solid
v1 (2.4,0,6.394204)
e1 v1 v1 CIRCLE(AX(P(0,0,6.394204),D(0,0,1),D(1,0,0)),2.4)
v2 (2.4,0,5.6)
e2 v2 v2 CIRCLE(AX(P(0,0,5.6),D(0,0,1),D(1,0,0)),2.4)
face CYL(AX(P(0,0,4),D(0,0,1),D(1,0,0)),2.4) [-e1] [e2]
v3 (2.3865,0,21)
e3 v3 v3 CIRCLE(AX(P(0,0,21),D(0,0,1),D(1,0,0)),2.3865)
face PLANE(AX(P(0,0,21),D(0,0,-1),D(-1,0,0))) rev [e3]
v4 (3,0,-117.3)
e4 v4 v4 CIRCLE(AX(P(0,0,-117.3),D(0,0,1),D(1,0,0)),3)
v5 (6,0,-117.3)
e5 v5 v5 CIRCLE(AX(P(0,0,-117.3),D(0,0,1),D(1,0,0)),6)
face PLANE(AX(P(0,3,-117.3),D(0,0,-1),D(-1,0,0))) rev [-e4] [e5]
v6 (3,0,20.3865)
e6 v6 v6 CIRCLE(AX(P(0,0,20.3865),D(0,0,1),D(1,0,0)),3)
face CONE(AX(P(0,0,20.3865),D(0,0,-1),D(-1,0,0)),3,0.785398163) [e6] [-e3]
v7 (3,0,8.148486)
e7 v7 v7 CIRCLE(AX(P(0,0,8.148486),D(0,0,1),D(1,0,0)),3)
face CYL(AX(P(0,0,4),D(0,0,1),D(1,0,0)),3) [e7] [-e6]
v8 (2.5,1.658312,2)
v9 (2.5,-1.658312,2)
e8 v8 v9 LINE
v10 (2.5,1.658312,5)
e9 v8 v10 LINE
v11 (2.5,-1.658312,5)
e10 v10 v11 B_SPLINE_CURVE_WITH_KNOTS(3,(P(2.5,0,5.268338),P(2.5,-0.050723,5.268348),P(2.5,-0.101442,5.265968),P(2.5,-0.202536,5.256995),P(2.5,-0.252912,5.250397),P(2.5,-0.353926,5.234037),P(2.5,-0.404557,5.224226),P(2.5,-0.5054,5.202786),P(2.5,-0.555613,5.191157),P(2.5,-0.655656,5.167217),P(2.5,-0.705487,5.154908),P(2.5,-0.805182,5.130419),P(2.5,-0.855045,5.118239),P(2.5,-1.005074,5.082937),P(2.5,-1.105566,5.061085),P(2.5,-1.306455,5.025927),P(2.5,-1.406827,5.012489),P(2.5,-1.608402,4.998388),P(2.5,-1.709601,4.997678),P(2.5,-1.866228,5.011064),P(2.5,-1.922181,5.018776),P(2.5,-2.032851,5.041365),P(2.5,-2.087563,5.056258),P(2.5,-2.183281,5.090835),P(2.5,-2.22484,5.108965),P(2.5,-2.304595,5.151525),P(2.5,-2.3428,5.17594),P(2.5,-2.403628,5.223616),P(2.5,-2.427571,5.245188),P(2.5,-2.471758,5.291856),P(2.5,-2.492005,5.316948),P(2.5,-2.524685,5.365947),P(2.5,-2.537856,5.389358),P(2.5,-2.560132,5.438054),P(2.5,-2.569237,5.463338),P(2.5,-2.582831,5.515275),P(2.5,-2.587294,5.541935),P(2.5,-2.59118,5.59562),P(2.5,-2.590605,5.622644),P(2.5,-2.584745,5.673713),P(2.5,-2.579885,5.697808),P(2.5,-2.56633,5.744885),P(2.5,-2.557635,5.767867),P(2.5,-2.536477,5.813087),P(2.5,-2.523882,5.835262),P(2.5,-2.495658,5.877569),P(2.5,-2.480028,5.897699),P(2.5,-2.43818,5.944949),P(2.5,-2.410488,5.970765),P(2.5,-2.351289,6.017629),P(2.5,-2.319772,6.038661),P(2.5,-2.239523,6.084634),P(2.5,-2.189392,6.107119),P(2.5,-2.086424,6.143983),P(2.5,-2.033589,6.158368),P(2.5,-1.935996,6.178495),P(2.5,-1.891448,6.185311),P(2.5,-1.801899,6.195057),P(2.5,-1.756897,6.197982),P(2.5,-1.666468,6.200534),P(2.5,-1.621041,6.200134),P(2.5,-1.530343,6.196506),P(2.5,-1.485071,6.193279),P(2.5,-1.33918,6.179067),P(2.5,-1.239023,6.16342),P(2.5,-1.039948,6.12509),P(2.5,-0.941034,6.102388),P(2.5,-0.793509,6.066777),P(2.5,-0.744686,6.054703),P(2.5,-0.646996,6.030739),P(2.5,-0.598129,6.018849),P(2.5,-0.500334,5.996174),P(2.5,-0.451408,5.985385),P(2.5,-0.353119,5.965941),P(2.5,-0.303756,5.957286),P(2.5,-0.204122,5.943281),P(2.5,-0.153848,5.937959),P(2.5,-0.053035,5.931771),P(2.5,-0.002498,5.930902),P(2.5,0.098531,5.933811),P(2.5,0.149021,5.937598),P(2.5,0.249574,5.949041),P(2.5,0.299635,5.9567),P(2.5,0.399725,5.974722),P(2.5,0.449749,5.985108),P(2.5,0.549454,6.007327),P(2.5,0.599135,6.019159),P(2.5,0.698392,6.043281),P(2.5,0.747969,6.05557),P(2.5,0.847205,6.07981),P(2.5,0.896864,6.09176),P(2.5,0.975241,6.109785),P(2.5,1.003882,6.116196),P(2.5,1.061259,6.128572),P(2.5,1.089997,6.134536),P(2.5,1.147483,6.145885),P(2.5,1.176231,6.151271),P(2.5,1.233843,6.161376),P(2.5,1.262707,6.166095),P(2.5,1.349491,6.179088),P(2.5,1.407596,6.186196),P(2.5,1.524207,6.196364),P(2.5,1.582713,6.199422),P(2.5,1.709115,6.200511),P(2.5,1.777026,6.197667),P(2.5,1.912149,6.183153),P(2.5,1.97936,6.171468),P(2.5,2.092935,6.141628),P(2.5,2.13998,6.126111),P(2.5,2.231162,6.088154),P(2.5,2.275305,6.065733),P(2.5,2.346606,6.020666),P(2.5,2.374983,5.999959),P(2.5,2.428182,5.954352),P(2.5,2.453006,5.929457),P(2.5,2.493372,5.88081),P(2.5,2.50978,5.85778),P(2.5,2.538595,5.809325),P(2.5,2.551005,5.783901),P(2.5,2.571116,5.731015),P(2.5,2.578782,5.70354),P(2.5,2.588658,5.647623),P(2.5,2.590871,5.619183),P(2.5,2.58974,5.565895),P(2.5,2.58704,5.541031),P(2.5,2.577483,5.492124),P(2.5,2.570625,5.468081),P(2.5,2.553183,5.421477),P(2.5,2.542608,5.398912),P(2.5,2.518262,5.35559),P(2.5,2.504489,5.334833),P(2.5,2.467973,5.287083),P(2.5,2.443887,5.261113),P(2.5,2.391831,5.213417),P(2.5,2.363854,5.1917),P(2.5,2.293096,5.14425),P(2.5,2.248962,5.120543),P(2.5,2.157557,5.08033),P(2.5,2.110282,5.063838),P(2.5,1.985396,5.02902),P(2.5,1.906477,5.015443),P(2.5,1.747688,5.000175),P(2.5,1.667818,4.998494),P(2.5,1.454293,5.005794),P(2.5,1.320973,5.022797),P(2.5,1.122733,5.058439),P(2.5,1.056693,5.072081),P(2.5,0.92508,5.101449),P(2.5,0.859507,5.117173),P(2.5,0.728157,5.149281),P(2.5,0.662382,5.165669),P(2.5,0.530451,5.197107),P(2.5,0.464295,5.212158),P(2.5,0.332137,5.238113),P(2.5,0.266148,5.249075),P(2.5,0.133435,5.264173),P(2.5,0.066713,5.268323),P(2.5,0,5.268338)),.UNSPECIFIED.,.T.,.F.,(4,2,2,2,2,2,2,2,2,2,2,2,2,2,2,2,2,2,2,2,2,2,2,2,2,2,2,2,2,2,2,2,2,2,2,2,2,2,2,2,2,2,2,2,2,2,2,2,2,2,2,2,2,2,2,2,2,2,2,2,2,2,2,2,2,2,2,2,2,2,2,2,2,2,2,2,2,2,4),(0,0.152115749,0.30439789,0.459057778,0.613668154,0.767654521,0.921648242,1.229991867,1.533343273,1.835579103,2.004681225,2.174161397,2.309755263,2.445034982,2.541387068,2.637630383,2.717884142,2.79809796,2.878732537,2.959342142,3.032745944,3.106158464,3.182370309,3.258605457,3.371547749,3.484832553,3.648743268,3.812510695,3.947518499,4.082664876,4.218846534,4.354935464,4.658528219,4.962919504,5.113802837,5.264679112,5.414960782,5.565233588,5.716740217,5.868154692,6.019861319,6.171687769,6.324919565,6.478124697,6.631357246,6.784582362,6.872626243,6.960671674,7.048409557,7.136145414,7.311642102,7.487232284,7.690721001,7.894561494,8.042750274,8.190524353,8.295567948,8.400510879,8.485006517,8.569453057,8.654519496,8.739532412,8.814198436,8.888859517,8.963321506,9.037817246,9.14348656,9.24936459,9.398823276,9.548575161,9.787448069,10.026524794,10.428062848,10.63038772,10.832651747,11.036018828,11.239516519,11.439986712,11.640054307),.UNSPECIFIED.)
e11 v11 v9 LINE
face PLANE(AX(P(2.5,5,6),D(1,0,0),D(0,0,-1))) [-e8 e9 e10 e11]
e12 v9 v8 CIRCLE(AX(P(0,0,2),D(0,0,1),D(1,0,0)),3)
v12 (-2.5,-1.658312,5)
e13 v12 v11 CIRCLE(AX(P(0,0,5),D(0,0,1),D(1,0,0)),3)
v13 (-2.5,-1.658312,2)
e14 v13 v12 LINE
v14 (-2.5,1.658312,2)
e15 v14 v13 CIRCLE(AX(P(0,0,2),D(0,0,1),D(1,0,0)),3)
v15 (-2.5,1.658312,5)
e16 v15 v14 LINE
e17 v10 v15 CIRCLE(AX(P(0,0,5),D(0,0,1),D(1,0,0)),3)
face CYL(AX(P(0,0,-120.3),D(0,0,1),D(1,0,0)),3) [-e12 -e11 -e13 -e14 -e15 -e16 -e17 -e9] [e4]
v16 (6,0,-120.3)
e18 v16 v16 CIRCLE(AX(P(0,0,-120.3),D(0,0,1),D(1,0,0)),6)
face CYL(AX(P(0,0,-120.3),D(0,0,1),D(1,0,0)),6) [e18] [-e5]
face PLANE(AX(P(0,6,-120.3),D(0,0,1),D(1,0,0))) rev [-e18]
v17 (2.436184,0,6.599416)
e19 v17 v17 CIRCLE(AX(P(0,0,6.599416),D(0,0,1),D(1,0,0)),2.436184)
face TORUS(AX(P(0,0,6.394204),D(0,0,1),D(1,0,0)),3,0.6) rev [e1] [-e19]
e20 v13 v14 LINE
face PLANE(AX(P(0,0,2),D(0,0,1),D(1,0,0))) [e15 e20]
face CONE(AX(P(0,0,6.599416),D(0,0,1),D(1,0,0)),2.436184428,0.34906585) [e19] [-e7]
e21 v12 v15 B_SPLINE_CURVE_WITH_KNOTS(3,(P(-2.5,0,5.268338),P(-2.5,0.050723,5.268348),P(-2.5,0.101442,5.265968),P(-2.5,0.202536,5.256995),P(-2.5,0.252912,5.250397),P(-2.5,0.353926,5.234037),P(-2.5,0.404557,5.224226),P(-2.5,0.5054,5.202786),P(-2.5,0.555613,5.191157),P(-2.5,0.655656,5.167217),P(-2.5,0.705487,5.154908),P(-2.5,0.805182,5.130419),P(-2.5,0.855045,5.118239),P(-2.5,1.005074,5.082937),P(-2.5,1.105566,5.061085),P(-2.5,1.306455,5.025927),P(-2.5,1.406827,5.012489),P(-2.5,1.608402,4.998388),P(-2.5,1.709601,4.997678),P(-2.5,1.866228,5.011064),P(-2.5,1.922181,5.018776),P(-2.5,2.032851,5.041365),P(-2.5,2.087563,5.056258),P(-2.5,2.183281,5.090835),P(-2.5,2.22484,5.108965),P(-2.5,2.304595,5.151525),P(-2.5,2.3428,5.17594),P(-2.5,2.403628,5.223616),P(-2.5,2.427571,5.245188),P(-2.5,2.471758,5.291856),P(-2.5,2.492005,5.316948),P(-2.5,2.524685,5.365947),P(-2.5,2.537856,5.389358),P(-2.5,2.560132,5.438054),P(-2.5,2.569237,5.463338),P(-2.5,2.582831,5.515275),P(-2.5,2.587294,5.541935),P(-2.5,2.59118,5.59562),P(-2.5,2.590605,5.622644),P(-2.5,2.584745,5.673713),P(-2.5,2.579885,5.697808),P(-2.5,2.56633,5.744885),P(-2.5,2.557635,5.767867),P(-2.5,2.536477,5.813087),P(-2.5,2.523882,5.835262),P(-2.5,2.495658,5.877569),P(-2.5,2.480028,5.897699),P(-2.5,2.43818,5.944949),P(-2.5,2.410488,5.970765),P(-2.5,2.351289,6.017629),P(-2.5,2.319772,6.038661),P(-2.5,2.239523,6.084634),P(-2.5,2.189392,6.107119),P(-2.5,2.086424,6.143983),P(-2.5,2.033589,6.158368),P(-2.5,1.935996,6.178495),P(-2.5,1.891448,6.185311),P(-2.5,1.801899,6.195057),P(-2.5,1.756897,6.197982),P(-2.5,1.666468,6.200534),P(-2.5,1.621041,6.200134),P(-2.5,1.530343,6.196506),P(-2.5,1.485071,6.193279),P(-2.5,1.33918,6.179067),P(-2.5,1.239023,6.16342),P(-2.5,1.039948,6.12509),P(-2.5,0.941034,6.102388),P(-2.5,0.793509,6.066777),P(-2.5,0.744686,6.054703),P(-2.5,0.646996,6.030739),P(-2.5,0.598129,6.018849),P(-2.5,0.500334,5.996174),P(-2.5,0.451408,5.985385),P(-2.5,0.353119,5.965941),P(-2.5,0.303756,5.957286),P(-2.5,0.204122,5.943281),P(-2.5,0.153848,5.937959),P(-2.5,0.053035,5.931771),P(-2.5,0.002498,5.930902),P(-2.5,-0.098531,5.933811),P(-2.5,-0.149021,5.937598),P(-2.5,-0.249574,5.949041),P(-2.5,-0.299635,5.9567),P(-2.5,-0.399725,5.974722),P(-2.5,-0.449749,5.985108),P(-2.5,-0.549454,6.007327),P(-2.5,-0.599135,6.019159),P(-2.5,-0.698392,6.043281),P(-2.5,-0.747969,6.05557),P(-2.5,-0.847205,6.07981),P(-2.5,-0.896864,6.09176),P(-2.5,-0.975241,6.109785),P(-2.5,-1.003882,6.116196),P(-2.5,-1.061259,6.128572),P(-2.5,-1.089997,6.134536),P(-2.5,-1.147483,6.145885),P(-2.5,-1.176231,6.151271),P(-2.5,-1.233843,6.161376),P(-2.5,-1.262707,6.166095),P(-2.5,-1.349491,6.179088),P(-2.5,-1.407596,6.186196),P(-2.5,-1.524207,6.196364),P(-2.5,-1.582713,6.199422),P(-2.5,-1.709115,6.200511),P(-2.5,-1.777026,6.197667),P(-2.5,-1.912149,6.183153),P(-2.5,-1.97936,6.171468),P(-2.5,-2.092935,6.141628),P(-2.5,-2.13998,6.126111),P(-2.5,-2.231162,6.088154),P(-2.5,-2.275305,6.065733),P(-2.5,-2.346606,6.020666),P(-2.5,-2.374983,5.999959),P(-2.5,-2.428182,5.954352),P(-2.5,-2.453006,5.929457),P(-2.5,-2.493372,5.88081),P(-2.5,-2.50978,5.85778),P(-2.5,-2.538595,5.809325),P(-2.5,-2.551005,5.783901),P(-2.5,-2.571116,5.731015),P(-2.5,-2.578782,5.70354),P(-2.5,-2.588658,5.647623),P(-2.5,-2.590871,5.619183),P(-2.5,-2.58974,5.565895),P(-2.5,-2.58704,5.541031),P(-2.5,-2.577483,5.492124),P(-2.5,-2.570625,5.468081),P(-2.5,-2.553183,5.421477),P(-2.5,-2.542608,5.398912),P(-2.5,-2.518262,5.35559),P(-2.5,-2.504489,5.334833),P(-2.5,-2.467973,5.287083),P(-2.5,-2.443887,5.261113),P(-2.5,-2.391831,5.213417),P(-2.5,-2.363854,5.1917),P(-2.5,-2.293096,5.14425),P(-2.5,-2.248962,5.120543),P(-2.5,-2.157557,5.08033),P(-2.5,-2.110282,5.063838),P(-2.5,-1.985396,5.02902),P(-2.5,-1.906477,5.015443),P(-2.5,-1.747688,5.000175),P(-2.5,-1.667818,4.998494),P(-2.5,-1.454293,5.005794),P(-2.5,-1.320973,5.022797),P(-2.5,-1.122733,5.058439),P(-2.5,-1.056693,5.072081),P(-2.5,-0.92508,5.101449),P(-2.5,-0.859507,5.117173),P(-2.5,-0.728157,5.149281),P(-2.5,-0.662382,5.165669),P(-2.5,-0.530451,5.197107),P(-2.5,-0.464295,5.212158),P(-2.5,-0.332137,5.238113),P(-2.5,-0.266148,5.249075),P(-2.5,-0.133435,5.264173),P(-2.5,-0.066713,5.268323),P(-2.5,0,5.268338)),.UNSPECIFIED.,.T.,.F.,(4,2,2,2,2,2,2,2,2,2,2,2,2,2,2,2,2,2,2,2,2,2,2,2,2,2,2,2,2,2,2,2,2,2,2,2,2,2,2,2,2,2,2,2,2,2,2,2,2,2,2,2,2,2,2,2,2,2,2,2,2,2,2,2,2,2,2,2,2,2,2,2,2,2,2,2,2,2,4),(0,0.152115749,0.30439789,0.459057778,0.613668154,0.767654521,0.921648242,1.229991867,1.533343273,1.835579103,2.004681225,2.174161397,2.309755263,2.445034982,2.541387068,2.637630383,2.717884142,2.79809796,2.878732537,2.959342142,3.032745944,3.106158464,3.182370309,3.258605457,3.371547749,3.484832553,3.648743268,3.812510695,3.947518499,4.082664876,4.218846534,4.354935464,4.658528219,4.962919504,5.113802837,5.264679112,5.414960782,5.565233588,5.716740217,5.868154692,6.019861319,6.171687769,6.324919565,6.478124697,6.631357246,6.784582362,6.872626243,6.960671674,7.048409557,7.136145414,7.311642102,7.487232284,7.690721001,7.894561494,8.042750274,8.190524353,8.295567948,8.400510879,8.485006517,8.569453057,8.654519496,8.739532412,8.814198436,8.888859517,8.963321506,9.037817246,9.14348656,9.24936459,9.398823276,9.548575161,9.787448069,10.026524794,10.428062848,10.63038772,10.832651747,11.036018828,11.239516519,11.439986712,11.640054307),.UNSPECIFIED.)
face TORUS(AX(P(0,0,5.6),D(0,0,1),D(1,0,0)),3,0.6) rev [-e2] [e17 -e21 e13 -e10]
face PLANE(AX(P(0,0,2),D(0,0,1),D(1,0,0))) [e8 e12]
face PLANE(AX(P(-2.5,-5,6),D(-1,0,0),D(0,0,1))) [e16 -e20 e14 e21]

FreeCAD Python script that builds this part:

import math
import FreeCAD as App
import Part
import Sketcher
Q = App.Units.Quantity

doc = App.newDocument("Part")
body = doc.addObject("PartDesign::Body", "Body")

# Sketch on YZ plane
sketch1 = body.newObject("Sketcher::SketchObject", "Sketch")
sketch1.AttachmentSupport = (doc.getObject("YZ_Plane"), [""])
sketch1.MapMode = "FlatFace"
sketch1.addGeometry([
    Part.LineSegment(App.Vector(3, 5, 0), App.Vector(0, 5, 0)),  # 0
    Part.LineSegment(App.Vector(0, 5, 0), App.Vector(0, -120.3, 0)),  # 1
    Part.LineSegment(App.Vector(0, -120.3, 0), App.Vector(6, -120.3, 0)),  # 2
    Part.LineSegment(App.Vector(6, -120.3, 0), App.Vector(6, -117.3, 0)),  # 3
    Part.LineSegment(App.Vector(6, -117.3, 0), App.Vector(3, -117.3, 0)),  # 4
    Part.LineSegment(App.Vector(3, -117.3, 0), App.Vector(3, 5, 0)),  # 5
], False)
sketch1.addConstraint([
    Sketcher.Constraint("Coincident", 0, 2, 1, 1),
    Sketcher.Constraint("Coincident", 1, 2, 2, 1),
    Sketcher.Constraint("Coincident", 2, 2, 3, 1),
    Sketcher.Constraint("Coincident", 3, 2, 4, 1),
    Sketcher.Constraint("Coincident", 4, 2, 5, 1),
    Sketcher.Constraint("Coincident", 5, 2, 0, 1),
    Sketcher.Constraint("Horizontal", 0),
    Sketcher.Constraint("Vertical", 1),
    Sketcher.Constraint("Horizontal", 2),
    Sketcher.Constraint("Vertical", 3),
    Sketcher.Constraint("Horizontal", 4),
    Sketcher.Constraint("Vertical", 5),
    Sketcher.Constraint("PointOnObject", 0, 2, -2),
    Sketcher.Constraint("Equal", 0, 4),
    Sketcher.Constraint("Equal", 4, 3),
    Sketcher.Constraint("DistanceX", 0, 2, 0, 1, 3.0),
    Sketcher.Constraint("DistanceY", 1, 2, 1, 1, 125.3),
    Sketcher.Constraint("DistanceY", -1, 1, 0, 2, 5.0),
])
revolution = body.newObject("PartDesign::Revolution", "Revolution")
revolution.Profile = sketch1
revolution.ReferenceAxis = (sketch1, ["V_Axis"])
revolution.Angle = 360

# Sketch on YZ plane
sketch2 = body.newObject("Sketcher::SketchObject", "Sketch001")
sketch2.AttachmentSupport = (doc.getObject("YZ_Plane"), [""])
sketch2.MapMode = "FlatFace"
sketch2.addGeometry([
    Part.LineSegment(App.Vector(2.3865, 21, 0), App.Vector(0, 21, 0)),  # 0
    Part.LineSegment(App.Vector(0, 21, 0), App.Vector(0, 4, 0)),  # 1
    Part.LineSegment(App.Vector(0, 4, 0), App.Vector(3, 4, 0)),  # 2
    Part.LineSegment(App.Vector(3, 4, 0), App.Vector(3, 5, 0)),  # 3
    Part.ArcOfCircle(Part.Circle(App.Vector(3, 5.6, 0), App.Vector(0, 0, 1), 0.6), math.radians(180), math.radians(270)),  # 4
    Part.LineSegment(App.Vector(2.4, 5.6, 0), App.Vector(2.4, 6.394204, 0)),  # 5
    Part.ArcOfCircle(Part.Circle(App.Vector(3, 6.394204, 0), App.Vector(0, 0, 1), 0.6), math.radians(160), math.radians(180)),  # 6
    Part.LineSegment(App.Vector(2.436184, 6.599416, 0), App.Vector(3, 8.148486, 0)),  # 7
    Part.LineSegment(App.Vector(3, 8.148486, 0), App.Vector(3, 20.3865, 0)),  # 8
    Part.LineSegment(App.Vector(3, 20.3865, 0), App.Vector(2.3865, 21, 0)),  # 9
], False)
sketch2.addConstraint([
    Sketcher.Constraint("Coincident", 0, 2, 1, 1),
    Sketcher.Constraint("Coincident", 1, 2, 2, 1),
    Sketcher.Constraint("Coincident", 2, 2, 3, 1),
    Sketcher.Constraint("Coincident", 3, 2, 4, 2),
    Sketcher.Constraint("Tangent", 4, 1, 5, 1),
    Sketcher.Constraint("Tangent", 5, 2, 6, 2),
    Sketcher.Constraint("Tangent", 6, 1, 7, 1),
    Sketcher.Constraint("Coincident", 7, 2, 8, 1),
    Sketcher.Constraint("Coincident", 8, 2, 9, 1),
    Sketcher.Constraint("Coincident", 9, 2, 0, 1),
    Sketcher.Constraint("Horizontal", 0),
    Sketcher.Constraint("Vertical", 1),
    Sketcher.Constraint("Horizontal", 2),
    Sketcher.Constraint("Vertical", 3),
    Sketcher.Constraint("Vertical", 5),
    Sketcher.Constraint("Vertical", 8),
    Sketcher.Constraint("Equal", 4, 6),
    Sketcher.Constraint("PointOnObject", 0, 2, -2),
    Sketcher.Constraint("Vertical", 6, 3, 2, 2),
    Sketcher.Constraint("Vertical", 3, 2, 7, 2),
    Sketcher.Constraint("Radius", 4, 0.6),
    Sketcher.Constraint("DistanceX", 2, 1, 2, 2, 3.0),
    Sketcher.Constraint("DistanceY", 1, 2, 1, 1, 17.0),
    Sketcher.Constraint("DistanceY", 3, 1, 3, 2, 1.0),
    Sketcher.Constraint("Angle", 7, Q("70 deg")),
    Sketcher.Constraint("Angle", 9, Q("135 deg")),
    Sketcher.Constraint("DistanceY", -1, 1, 0, 2, 21.0),
    Sketcher.Constraint("DistanceX", 0, 2, 0, 1, 2.3865),
    Sketcher.Constraint("DistanceY", 5, 1, 5, 2, 0.794204),
])
revolution2 = body.newObject("PartDesign::Revolution", "Revolution001")
revolution2.Profile = sketch2
revolution2.ReferenceAxis = (sketch2, ["V_Axis"])
revolution2.Angle = 360

# Sketch on XY plane
sketch3 = body.newObject("Sketcher::SketchObject", "Sketch002")
sketch3.AttachmentSupport = (doc.getObject("XY_Plane"), [""])
sketch3.MapMode = "FlatFace"
sketch3.AttachmentOffset = App.Placement(App.Vector(0, 0, 2), App.Rotation())
sketch3.addGeometry([
    Part.LineSegment(App.Vector(-5, 10, 0), App.Vector(-5, -5, 0)),  # 0
    Part.LineSegment(App.Vector(-5, -5, 0), App.Vector(-2.5, -5, 0)),  # 1
    Part.LineSegment(App.Vector(-2.5, -5, 0), App.Vector(-2.5, 5, 0)),  # 2
    Part.LineSegment(App.Vector(-2.5, 5, 0), App.Vector(2.5, 5, 0)),  # 3
    Part.LineSegment(App.Vector(2.5, 5, 0), App.Vector(2.5, -5, 0)),  # 4
    Part.LineSegment(App.Vector(2.5, -5, 0), App.Vector(5, -5, 0)),  # 5
    Part.LineSegment(App.Vector(5, -5, 0), App.Vector(5, 10, 0)),  # 6
    Part.LineSegment(App.Vector(5, 10, 0), App.Vector(-5, 10, 0)),  # 7
], False)
sketch3.addConstraint([
    Sketcher.Constraint("Coincident", 0, 2, 1, 1),
    Sketcher.Constraint("Coincident", 1, 2, 2, 1),
    Sketcher.Constraint("Coincident", 2, 2, 3, 1),
    Sketcher.Constraint("Coincident", 3, 2, 4, 1),
    Sketcher.Constraint("Coincident", 4, 2, 5, 1),
    Sketcher.Constraint("Coincident", 5, 2, 6, 1),
    Sketcher.Constraint("Coincident", 6, 2, 7, 1),
    Sketcher.Constraint("Coincident", 7, 2, 0, 1),
    Sketcher.Constraint("Vertical", 0),
    Sketcher.Constraint("Horizontal", 1),
    Sketcher.Constraint("Vertical", 2),
    Sketcher.Constraint("Horizontal", 3),
    Sketcher.Constraint("Vertical", 4),
    Sketcher.Constraint("Horizontal", 5),
    Sketcher.Constraint("Vertical", 6),
    Sketcher.Constraint("Horizontal", 7),
    Sketcher.Constraint("Symmetric", 1, 2, 3, 2, -1, 1),
    Sketcher.Constraint("Symmetric", 0, 2, 5, 2, -2),
    Sketcher.Constraint("Equal", 7, 2),
    Sketcher.Constraint("DistanceX", 3, 1, 3, 2, 5.0),
    Sketcher.Constraint("DistanceX", 7, 2, 7, 1, 10.0),
    Sketcher.Constraint("DistanceY", 0, 2, 0, 1, 15.0),
])
pocket1 = body.newObject("PartDesign::Pocket", "Pocket")
pocket1.Profile = sketch3
pocket1.Length = 4
pocket1.Reversed = True

doc.recompute()
